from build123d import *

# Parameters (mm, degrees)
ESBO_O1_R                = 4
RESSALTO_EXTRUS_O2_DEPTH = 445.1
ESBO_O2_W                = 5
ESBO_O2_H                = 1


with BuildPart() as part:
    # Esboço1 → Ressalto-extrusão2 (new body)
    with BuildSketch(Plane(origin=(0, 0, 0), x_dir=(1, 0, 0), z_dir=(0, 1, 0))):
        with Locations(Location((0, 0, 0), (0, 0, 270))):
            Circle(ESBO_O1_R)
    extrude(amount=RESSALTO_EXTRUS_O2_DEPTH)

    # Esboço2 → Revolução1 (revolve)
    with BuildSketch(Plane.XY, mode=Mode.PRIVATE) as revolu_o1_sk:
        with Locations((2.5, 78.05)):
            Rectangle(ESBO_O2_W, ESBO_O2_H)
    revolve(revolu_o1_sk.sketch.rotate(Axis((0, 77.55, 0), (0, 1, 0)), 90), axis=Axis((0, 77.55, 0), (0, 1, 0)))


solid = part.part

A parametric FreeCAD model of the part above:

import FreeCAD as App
import Part
import Sketcher

doc = App.newDocument("Part")
body = doc.addObject("PartDesign::Body", "Body")

# Sketch on XZ plane
sketch1 = body.newObject("Sketcher::SketchObject", "Sketch")
sketch1.AttachmentSupport = (doc.getObject("XZ_Plane"), [""])
sketch1.MapMode = "FlatFace"
sketch1.addGeometry(Part.Circle(App.Vector(0, 0, 0), App.Vector(0, 0, 1), 4), False)
sketch1.addConstraint(Sketcher.Constraint("Coincident", 0, 3, -1, 1))
sketch1.addConstraint(Sketcher.Constraint("Diameter", 0, 8.0))
pad1 = body.newObject("PartDesign::Pad", "Pad")
pad1.Profile = sketch1
pad1.Length = 445.1
pad1.Reversed = True

# Sketch on XY plane
sketch2 = body.newObject("Sketcher::SketchObject", "Sketch001")
sketch2.AttachmentSupport = (doc.getObject("XY_Plane"), [""])
sketch2.MapMode = "FlatFace"
sketch2.addGeometry(Part.LineSegment(App.Vector(0, 78.5, 0), App.Vector(0, 77.5, 0)), False)
sketch2.addGeometry(Part.LineSegment(App.Vector(0, 77.5, 0), App.Vector(5, 77.5, 0)), False)
sketch2.addGeometry(Part.LineSegment(App.Vector(5, 77.5, 0), App.Vector(5, 78.5, 0)), False)
sketch2.addGeometry(Part.LineSegment(App.Vector(5, 78.5, 0), App.Vector(0, 78.5, 0)), False)
sketch2.addConstraint(Sketcher.Constraint("Coincident", 0, 2, 1, 1))
sketch2.addConstraint(Sketcher.Constraint("Coincident", 1, 2, 2, 1))
sketch2.addConstraint(Sketcher.Constraint("Coincident", 2, 2, 3, 1))
sketch2.addConstraint(Sketcher.Constraint("Coincident", 3, 2, 0, 1))
sketch2.addConstraint(Sketcher.Constraint("Vertical", 0))
sketch2.addConstraint(Sketcher.Constraint("Horizontal", 1))
sketch2.addConstraint(Sketcher.Constraint("Vertical", 2))
sketch2.addConstraint(Sketcher.Constraint("Horizontal", 3))
sketch2.addConstraint(Sketcher.Constraint("PointOnObject", 0, 2, -2))
sketch2.addConstraint(Sketcher.Constraint("DistanceX", 1, 1, 1, 2, 5.0))
sketch2.addConstraint(Sketcher.Constraint("DistanceY", 0, 2, 0, 1, 1.0))
sketch2.addConstraint(Sketcher.Constraint("DistanceY", -1, 1, 0, 2, 77.55))
revolution = body.newObject("PartDesign::Revolution", "Revolution")
revolution.Profile = sketch2
revolution.ReferenceAxis = (sketch2, ["V_Axis"])
revolution.Angle = 360

doc.recompute()
